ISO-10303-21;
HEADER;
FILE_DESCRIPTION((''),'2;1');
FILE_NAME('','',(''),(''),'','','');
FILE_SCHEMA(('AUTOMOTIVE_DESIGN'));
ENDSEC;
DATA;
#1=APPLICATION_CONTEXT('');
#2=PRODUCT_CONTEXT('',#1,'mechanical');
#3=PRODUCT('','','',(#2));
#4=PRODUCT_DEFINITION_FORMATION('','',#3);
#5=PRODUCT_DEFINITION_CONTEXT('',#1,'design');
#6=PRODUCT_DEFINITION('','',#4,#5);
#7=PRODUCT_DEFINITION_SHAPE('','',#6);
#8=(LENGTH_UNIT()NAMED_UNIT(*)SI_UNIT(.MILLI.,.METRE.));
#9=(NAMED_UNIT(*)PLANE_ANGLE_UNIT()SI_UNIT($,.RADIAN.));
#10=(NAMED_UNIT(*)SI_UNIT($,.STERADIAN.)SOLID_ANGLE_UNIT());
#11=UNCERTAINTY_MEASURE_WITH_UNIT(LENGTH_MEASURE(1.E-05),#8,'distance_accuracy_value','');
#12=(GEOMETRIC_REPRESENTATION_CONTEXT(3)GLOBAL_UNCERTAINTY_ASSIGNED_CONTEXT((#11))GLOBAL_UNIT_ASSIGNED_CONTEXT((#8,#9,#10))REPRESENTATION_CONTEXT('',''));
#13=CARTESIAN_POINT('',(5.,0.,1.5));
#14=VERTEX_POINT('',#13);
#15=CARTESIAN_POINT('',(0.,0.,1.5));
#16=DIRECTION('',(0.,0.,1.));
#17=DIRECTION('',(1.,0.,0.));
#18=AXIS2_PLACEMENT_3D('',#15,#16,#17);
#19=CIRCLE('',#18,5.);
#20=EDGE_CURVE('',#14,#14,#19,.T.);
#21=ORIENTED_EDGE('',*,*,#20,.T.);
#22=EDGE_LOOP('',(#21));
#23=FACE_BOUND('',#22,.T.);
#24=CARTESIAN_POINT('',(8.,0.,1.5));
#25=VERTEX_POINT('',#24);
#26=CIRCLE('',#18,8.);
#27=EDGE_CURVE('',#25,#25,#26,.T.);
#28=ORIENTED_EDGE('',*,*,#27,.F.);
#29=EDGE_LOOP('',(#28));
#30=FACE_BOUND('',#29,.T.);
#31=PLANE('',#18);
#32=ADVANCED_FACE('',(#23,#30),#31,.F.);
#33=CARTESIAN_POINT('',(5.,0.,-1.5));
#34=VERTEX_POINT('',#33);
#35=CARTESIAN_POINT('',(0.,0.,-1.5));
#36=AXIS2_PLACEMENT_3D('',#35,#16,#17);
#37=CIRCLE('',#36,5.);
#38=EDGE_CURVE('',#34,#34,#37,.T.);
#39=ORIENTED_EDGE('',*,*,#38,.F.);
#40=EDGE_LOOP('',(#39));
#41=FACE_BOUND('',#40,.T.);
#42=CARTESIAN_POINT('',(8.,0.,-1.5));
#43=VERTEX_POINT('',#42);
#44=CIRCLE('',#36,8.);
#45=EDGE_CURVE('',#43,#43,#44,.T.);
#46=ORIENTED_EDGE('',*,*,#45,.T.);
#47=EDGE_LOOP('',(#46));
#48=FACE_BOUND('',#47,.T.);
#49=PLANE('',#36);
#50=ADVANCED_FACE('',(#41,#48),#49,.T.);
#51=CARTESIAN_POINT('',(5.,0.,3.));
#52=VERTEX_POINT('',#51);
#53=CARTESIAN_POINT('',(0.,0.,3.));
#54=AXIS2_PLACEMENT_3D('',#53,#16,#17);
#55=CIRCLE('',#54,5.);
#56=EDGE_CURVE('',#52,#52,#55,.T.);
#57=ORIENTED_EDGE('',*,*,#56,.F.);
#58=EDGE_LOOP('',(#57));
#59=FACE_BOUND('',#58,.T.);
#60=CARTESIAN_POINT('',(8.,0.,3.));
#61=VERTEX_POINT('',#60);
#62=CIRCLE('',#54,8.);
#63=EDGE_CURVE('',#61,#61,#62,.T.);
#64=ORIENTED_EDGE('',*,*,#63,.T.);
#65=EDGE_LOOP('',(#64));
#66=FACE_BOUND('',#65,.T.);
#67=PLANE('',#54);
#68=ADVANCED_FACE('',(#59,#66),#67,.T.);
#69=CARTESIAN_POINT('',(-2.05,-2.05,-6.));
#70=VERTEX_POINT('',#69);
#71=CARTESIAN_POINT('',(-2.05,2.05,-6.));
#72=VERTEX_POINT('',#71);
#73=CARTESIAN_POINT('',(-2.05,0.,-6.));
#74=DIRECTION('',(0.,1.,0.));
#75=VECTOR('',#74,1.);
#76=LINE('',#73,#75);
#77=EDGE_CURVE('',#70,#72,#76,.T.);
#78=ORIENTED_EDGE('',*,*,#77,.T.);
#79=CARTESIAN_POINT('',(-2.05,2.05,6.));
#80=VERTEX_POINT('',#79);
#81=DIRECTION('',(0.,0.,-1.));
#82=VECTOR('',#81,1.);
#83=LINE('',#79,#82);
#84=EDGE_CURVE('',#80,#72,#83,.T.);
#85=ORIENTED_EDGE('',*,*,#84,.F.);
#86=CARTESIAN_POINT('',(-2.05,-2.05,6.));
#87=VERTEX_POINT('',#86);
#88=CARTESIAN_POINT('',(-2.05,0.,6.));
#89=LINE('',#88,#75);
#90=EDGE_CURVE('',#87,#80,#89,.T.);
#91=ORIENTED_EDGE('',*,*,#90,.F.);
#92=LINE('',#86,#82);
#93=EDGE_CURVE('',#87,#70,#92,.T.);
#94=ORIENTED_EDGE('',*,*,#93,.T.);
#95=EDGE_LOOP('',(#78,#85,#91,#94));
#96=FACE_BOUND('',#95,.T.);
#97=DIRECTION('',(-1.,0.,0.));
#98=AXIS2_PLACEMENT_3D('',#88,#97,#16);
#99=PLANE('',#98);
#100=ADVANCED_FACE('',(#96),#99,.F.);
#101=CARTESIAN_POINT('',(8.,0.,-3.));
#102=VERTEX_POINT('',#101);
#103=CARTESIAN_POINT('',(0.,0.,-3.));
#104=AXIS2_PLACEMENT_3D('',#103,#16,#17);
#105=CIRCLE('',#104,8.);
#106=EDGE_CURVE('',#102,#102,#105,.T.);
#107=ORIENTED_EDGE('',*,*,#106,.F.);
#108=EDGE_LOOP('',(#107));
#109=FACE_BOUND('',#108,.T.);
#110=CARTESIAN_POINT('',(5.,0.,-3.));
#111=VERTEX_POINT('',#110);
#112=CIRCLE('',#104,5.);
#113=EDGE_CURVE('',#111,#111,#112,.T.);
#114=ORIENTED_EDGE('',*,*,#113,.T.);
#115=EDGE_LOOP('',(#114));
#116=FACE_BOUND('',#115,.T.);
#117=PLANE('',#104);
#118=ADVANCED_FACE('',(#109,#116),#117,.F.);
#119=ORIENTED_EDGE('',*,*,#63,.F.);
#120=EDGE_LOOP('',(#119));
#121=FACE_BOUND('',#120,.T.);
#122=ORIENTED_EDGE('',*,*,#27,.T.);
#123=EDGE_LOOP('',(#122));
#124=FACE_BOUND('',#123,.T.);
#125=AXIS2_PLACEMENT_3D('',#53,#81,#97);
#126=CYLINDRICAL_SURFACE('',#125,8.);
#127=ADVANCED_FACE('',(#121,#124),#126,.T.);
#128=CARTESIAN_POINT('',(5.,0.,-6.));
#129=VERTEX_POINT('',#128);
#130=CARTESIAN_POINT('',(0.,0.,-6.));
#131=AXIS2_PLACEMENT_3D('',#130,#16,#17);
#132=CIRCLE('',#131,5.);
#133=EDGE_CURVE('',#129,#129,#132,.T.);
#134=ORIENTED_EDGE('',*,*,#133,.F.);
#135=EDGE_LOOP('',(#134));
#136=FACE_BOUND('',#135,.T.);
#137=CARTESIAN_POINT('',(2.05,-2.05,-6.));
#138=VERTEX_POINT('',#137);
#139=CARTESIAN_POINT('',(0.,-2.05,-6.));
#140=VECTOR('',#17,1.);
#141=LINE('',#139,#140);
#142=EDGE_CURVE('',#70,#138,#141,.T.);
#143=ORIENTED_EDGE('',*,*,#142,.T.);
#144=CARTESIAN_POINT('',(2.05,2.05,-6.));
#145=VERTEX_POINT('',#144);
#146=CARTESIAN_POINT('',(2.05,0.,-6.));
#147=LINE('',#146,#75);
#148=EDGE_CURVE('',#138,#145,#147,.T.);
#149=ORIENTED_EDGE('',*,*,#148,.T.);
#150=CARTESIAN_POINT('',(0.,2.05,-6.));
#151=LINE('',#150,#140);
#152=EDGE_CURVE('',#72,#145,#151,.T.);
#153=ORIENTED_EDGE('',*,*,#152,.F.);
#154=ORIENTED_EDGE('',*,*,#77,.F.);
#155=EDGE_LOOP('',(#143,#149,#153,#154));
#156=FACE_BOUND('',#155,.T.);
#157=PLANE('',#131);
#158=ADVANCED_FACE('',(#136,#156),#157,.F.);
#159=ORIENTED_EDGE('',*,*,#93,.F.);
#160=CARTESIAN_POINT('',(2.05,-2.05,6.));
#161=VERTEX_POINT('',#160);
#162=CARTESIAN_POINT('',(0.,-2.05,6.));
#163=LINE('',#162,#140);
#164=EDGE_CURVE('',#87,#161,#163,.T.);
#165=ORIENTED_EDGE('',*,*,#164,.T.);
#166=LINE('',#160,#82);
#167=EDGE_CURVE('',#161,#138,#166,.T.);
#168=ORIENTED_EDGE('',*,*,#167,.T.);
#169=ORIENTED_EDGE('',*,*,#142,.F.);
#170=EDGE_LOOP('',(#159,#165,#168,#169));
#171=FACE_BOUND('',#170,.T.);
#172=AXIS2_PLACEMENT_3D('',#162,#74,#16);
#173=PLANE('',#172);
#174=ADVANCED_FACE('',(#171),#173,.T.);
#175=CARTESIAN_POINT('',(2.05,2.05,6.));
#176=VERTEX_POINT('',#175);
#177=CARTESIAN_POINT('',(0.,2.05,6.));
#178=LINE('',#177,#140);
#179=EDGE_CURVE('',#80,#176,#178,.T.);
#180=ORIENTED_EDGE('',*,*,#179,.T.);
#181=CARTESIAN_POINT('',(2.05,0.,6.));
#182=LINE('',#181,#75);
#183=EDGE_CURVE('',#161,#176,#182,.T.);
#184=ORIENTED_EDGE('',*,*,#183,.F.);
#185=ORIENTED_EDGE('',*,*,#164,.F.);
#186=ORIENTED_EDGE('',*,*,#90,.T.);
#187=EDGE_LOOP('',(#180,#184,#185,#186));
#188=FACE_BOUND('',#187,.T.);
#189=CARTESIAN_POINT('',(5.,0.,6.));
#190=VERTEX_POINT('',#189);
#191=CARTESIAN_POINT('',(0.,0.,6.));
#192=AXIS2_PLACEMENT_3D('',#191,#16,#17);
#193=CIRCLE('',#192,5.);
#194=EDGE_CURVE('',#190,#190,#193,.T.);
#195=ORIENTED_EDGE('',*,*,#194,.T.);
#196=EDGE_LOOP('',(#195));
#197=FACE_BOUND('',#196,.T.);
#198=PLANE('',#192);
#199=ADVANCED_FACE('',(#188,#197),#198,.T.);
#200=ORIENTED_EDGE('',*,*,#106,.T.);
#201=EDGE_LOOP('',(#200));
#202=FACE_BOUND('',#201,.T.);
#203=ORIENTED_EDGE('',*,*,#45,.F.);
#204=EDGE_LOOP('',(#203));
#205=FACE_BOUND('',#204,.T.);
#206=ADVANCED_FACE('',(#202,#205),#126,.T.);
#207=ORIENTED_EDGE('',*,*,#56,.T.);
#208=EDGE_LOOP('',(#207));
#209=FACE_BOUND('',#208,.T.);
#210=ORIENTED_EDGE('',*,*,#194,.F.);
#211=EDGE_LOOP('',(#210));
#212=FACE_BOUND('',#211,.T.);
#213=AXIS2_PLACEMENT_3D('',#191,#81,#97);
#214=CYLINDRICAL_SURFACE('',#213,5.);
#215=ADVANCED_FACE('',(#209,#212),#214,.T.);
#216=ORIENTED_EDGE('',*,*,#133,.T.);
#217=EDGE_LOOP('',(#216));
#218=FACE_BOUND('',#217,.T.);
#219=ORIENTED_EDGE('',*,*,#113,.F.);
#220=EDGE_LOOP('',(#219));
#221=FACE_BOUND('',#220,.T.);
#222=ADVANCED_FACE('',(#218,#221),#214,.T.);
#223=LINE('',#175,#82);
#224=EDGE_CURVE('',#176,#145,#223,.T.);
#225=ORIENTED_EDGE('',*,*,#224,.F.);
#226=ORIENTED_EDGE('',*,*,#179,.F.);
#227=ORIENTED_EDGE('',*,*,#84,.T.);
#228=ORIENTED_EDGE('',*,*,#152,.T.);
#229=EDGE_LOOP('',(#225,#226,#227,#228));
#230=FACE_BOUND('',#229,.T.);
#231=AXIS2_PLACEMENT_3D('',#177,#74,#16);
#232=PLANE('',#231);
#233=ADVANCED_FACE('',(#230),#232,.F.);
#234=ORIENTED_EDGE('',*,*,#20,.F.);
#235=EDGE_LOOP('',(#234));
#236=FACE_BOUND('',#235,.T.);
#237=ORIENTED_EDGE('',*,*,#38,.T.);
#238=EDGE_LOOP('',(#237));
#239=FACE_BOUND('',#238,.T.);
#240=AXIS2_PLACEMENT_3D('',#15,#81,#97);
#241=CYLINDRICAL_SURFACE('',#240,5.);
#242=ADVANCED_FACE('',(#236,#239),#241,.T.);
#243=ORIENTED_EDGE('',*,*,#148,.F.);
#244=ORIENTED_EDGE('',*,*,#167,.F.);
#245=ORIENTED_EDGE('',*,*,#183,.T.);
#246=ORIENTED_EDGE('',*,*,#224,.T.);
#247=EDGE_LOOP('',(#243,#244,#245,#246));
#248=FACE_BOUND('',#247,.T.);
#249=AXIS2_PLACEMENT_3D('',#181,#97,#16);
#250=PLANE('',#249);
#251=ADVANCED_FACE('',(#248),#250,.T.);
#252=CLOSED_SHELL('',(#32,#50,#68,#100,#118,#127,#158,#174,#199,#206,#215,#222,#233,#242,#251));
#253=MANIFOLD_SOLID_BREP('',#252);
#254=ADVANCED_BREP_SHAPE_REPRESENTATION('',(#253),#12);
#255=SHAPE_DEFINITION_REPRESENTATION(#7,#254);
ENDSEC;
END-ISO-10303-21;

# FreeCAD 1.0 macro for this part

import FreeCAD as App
import Part
import Sketcher

V = App.Vector


def add_polygon(sketch, points):
    """Adds a closed chain of lines whose ends are joined by coincident constraints."""
    first, n = sketch.GeometryCount, len(points)
    for a, b in zip(points, points[1:] + points[:1]):
        sketch.addGeometry(Part.LineSegment(App.Vector(*a, 0), App.Vector(*b, 0)), False)
    for i in range(n):
        sketch.addConstraint(Sketcher.Constraint("Coincident", first + i, 2, first + (i + 1) % n, 1))

doc = App.newDocument("Part")
body = doc.addObject("PartDesign::Body", "Body")

# Sketch on XY plane
sketch1 = doc.addObject("Sketcher::SketchObject", "Sketch")
body.addObject(sketch1)
sketch1.AttachmentSupport = (doc.XY_Plane, [""])
sketch1.MapMode = "FlatFace"
sketch1.addGeometry(Part.Circle(V(0, 0, 0), V(0, 0, 1), 5), False)  # 0
add_polygon(sketch1, [(2.05, -2.05), (-2.05, -2.05), (-2.05, 2.05), (2.05, 2.05)])  # lines 1-4
sketch1.addConstraint(Sketcher.Constraint("Horizontal", 1))
sketch1.addConstraint(Sketcher.Constraint("Vertical", 2))
sketch1.addConstraint(Sketcher.Constraint("Horizontal", 3))
sketch1.addConstraint(Sketcher.Constraint("Vertical", 4))
sketch1.addConstraint(Sketcher.Constraint("Coincident", 0, 3, -1, 1))
sketch1.addConstraint(Sketcher.Constraint("Symmetric", 1, 2, 3, 2, -1, 1))
sketch1.addConstraint(Sketcher.Constraint("Equal", 3, 2))
sketch1.addConstraint(Sketcher.Constraint("Diameter", 0, 10.0))
sketch1.addConstraint(Sketcher.Constraint("DistanceX", 1, 2, 1, 1, 4.1))
pad1 = doc.addObject("PartDesign::Pad", "Pad")
body.addObject(pad1)
pad1.Profile = sketch1
pad1.Length = 12
pad1.Midplane = True

# Sketch on XY plane
sketch2 = doc.addObject("Sketcher::SketchObject", "Sketch001")
body.addObject(sketch2)
sketch2.AttachmentSupport = (doc.XY_Plane, [""])
sketch2.MapMode = "FlatFace"
sketch2.addGeometry(Part.Circle(V(0, 0, 0), V(0, 0, 1), 8), False)
sketch2.addGeometry(Part.Circle(V(0, 0, 0), V(0, 0, 1), 5), False)
sketch2.addConstraint(Sketcher.Constraint("Coincident", 0, 3, -1, 1))
sketch2.addConstraint(Sketcher.Constraint("Coincident", 1, 3, -1, 1))
sketch2.addConstraint(Sketcher.Constraint("Diameter", 0, 16.0))
sketch2.addConstraint(Sketcher.Constraint("Diameter", 1, 10.0))
pad2 = doc.addObject("PartDesign::Pad", "Pad001")
body.addObject(pad2)
pad2.Profile = sketch2
pad2.Length = 6
pad2.Midplane = True

# Sketch on XY plane
sketch3 = doc.addObject("Sketcher::SketchObject", "Sketch002")
body.addObject(sketch3)
sketch3.AttachmentSupport = (doc.XY_Plane, [""])
sketch3.MapMode = "FlatFace"
sketch3.addGeometry(Part.Circle(V(0, 0, 0), V(0, 0, 1), 8), False)
sketch3.addGeometry(Part.Circle(V(0, 0, 0), V(0, 0, 1), 5), False)
sketch3.addConstraint(Sketcher.Constraint("Coincident", 0, 3, -1, 1))
sketch3.addConstraint(Sketcher.Constraint("Coincident", 1, 3, -1, 1))
sketch3.addConstraint(Sketcher.Constraint("Diameter", 0, 16.0))
sketch3.addConstraint(Sketcher.Constraint("Diameter", 1, 10.0))
pocket1 = doc.addObject("PartDesign::Pocket", "Pocket")
body.addObject(pocket1)
pocket1.Profile = sketch3
pocket1.Length = 3
pocket1.Midplane = True

doc.recompute()
